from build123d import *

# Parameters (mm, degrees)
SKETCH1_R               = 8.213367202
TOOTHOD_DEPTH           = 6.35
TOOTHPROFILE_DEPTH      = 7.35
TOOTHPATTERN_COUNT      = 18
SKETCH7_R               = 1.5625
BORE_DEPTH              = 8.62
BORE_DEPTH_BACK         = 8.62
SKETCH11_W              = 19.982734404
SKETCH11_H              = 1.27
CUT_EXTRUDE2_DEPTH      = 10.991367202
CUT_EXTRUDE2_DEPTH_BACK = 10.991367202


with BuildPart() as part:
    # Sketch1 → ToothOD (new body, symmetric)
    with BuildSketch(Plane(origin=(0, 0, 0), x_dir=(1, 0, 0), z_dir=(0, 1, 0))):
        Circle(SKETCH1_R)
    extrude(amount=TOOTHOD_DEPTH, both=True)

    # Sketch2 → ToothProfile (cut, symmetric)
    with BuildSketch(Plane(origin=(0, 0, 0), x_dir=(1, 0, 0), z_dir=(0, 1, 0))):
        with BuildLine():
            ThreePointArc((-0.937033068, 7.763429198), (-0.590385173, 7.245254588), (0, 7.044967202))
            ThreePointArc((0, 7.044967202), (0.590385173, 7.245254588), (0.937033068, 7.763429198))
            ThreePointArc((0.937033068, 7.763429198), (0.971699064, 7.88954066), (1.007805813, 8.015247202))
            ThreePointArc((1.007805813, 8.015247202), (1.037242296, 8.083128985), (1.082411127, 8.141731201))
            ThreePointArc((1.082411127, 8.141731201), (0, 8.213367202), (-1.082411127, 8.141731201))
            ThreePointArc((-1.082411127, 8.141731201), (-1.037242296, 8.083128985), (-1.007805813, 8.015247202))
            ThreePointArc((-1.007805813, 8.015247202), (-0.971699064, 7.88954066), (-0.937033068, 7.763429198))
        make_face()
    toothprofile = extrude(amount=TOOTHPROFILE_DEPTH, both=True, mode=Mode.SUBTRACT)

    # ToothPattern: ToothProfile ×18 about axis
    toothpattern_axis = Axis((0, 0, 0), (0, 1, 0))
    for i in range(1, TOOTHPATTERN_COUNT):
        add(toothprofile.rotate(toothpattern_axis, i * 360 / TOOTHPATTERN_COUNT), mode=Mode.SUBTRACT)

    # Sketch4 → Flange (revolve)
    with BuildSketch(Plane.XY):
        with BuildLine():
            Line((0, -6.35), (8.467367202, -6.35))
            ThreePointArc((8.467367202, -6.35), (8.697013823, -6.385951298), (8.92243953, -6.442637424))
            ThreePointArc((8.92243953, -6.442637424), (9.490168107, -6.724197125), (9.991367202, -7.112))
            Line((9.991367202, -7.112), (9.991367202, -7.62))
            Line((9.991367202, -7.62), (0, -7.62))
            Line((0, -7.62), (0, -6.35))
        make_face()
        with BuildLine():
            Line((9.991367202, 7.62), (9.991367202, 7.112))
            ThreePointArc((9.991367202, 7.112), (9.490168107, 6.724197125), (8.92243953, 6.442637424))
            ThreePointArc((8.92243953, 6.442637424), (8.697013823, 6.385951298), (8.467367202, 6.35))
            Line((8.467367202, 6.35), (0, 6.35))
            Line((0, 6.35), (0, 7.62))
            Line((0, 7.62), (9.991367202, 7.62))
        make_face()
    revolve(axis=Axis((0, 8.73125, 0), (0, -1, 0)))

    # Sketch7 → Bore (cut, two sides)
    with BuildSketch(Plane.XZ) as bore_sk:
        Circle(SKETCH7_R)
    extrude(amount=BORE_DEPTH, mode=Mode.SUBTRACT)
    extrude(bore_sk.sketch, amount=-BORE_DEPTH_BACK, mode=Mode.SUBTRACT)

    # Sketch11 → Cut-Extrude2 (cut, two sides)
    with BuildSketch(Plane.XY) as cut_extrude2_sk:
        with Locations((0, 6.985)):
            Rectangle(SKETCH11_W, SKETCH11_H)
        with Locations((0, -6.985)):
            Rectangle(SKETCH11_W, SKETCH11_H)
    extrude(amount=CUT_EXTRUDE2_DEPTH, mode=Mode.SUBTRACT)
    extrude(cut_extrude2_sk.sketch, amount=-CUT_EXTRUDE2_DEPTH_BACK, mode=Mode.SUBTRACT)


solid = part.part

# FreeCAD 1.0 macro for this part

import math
import FreeCAD as App
import Part
import Sketcher
Q = App.Units.Quantity


def add_polygon(sketch, points):
    """Adds a closed chain of lines whose ends are joined by coincident constraints."""
    first, n = sketch.GeometryCount, len(points)
    for a, b in zip(points, points[1:] + points[:1]):
        sketch.addGeometry(Part.LineSegment(App.Vector(*a, 0), App.Vector(*b, 0)), False)
    for i in range(n):
        sketch.addConstraint(Sketcher.Constraint("Coincident", first + i, 2, first + (i + 1) % n, 1))

doc = App.newDocument("Part")
body = doc.addObject("PartDesign::Body", "Body")

# Sketch on XZ plane
sketch1 = body.newObject("Sketcher::SketchObject", "Sketch")
sketch1.AttachmentSupport = (doc.getObject("XZ_Plane"), [""])
sketch1.MapMode = "FlatFace"
sketch1.addGeometry(Part.Circle(App.Vector(0, 0, 0), App.Vector(0, 0, 1), 8.213367), False)
sketch1.addConstraint(Sketcher.Constraint("Coincident", 0, 3, -1, 1))
sketch1.addConstraint(Sketcher.Constraint("Diameter", 0, 16.426734))
pad1 = body.newObject("PartDesign::Pad", "Pad")
pad1.Profile = sketch1
pad1.Length = Q("0.5 in")
pad1.Midplane = True

# Sketch on XZ plane
sketch2 = body.newObject("Sketcher::SketchObject", "Sketch001")
sketch2.AttachmentSupport = (doc.getObject("XZ_Plane"), [""])
sketch2.MapMode = "FlatFace"
sketch2.addGeometry(Part.ArcOfCircle(Part.Circle(App.Vector(0, -8.015247, 0), App.Vector(0, 0, 1), 0.97028), math.radians(90), math.radians(164.957749)), False)
sketch2.addGeometry(Part.ArcOfCircle(Part.Circle(App.Vector(0, -8.015247, 0), App.Vector(0, 0, 1), 0.97028), math.radians(15.042251), math.radians(90)), False)
sketch2.addGeometry(Part.ArcOfCircle(Part.Circle(App.Vector(11.975386, -4.796985, 0), App.Vector(0, 0, 1), 11.430005), math.radians(-164.957748), math.radians(-163.646513)), False)
sketch2.addGeometry(Part.ArcOfCircle(Part.Circle(App.Vector(1.2954, -7.930857, 0), App.Vector(0, 0, 1), 0.29972), math.radians(-163.646511), math.radians(-135.285886)), False)
sketch2.addGeometry(Part.ArcOfCircle(Part.Circle(App.Vector(0, 0, 0), App.Vector(0, 0, 1), 8.213367), math.radians(-97.572841), math.radians(-82.427159)), False)
sketch2.addGeometry(Part.ArcOfCircle(Part.Circle(App.Vector(-1.2954, -7.930857, 0), App.Vector(0, 0, 1), 0.29972), math.radians(-44.714114), math.radians(-16.353489)), False)
sketch2.addGeometry(Part.ArcOfCircle(Part.Circle(App.Vector(-11.975386, -4.796985, 0), App.Vector(0, 0, 1), 11.430005), math.radians(-16.353487), math.radians(-15.042252)), False)
sketch2.addConstraint(Sketcher.Constraint("Tangent", 0, 1, 1, 2))
sketch2.addConstraint(Sketcher.Constraint("Tangent", 1, 1, 2, 1))
sketch2.addConstraint(Sketcher.Constraint("Tangent", 2, 2, 3, 1))
sketch2.addConstraint(Sketcher.Constraint("Coincident", 3, 2, 4, 2))
sketch2.addConstraint(Sketcher.Constraint("Coincident", 4, 1, 5, 1))
sketch2.addConstraint(Sketcher.Constraint("Tangent", 5, 2, 6, 1))
sketch2.addConstraint(Sketcher.Constraint("Tangent", 6, 2, 0, 2))
sketch2.addConstraint(Sketcher.Constraint("Coincident", 4, 3, -1, 1))
sketch2.addConstraint(Sketcher.Constraint("Equal", 0, 1))
sketch2.addConstraint(Sketcher.Constraint("Equal", 3, 5))
sketch2.addConstraint(Sketcher.Constraint("Equal", 2, 6))
sketch2.addConstraint(Sketcher.Constraint("Symmetric", 3, 3, 5, 3, -2))
sketch2.addConstraint(Sketcher.Constraint("PointOnObject", 0, 3, -2))
sketch2.addConstraint(Sketcher.Constraint("PointOnObject", 0, 1, -2))
sketch2.addConstraint(Sketcher.Constraint("Horizontal", 1, 3, 2, 2))
sketch2.addConstraint(Sketcher.Constraint("Radius", 0, Q("0.0382 in")))
sketch2.addConstraint(Sketcher.Constraint("Radius", 3, Q("0.0118 in")))
sketch2.addConstraint(Sketcher.Constraint("DistanceX", -1, 1, 3, 3, Q("0.051 in")))
sketch2.addConstraint(Sketcher.Constraint("Radius", 2, 11.430005))
sketch2.addConstraint(Sketcher.Constraint("Radius", 4, 8.213367))
sketch2.addConstraint(Sketcher.Constraint("DistanceY", 1, 1, -1, 1, 7.763429))
pocket1 = body.newObject("PartDesign::Pocket", "Pocket")
pocket1.Profile = sketch2
pocket1.Length = 14.7
pocket1.Midplane = True
doc.recompute()

polarpattern = body.newObject("PartDesign::PolarPattern", "PolarPattern")
polarpattern.Originals = [pocket1]
polarpattern.Axis = (doc.getObject("Y_Axis"), [""])
polarpattern.Angle = 360
polarpattern.Occurrences = 18
body.Tip = polarpattern

# Sketch on XY plane
sketch3 = body.newObject("Sketcher::SketchObject", "Sketch002")
sketch3.AttachmentSupport = (doc.getObject("XY_Plane"), [""])
sketch3.MapMode = "FlatFace"
sketch3.addGeometry(Part.LineSegment(App.Vector(8.467367, -6.35, 0), App.Vector(0, -6.35, 0)), False)
sketch3.addGeometry(Part.LineSegment(App.Vector(0, -6.35, 0), App.Vector(0, -7.62, 0)), False)
sketch3.addGeometry(Part.LineSegment(App.Vector(0, -7.62, 0), App.Vector(9.991367, -7.62, 0)), False)
sketch3.addGeometry(Part.LineSegment(App.Vector(9.991367, -7.62, 0), App.Vector(9.991367, -7.112, 0)), False)
sketch3.addGeometry(Part.ArcOfCircle(Part.Circle(App.Vector(7.789898, -9.439416, 0), App.Vector(0, 0, 1), 3.203644), math.radians(46.592965), math.radians(69.297433)), False)
sketch3.addGeometry(Part.ArcOfCircle(Part.Circle(App.Vector(8.187675, -8.888031, 0), App.Vector(0, 0, 1), 2.553395), math.radians(73.276105), math.radians(83.711343)), False)
sketch3.addGeometry(Part.LineSegment(App.Vector(9.991367, 7.112, 0), App.Vector(9.991367, 7.62, 0)), False)
sketch3.addGeometry(Part.LineSegment(App.Vector(9.991367, 7.62, 0), App.Vector(0, 7.62, 0)), False)
sketch3.addGeometry(Part.LineSegment(App.Vector(0, 7.62, 0), App.Vector(0, 6.35, 0)), False)
sketch3.addGeometry(Part.LineSegment(App.Vector(0, 6.35, 0), App.Vector(8.467367, 6.35, 0)), False)
sketch3.addGeometry(Part.ArcOfCircle(Part.Circle(App.Vector(8.187675, 8.888031, 0), App.Vector(0, 0, 1), 2.553395), math.radians(-83.711343), math.radians(-73.276105)), False)
sketch3.addGeometry(Part.ArcOfCircle(Part.Circle(App.Vector(7.789898, 9.439416, 0), App.Vector(0, 0, 1), 3.203644), math.radians(-69.297433), math.radians(-46.592965)), False)
sketch3.addConstraint(Sketcher.Constraint("Coincident", 0, 2, 1, 1))
sketch3.addConstraint(Sketcher.Constraint("Coincident", 1, 2, 2, 1))
sketch3.addConstraint(Sketcher.Constraint("Coincident", 2, 2, 3, 1))
sketch3.addConstraint(Sketcher.Constraint("Coincident", 3, 2, 4, 1))
sketch3.addConstraint(Sketcher.Constraint("Coincident", 4, 2, 5, 1))
sketch3.addConstraint(Sketcher.Constraint("Coincident", 5, 2, 0, 1))
sketch3.addConstraint(Sketcher.Constraint("Coincident", 6, 2, 7, 1))
sketch3.addConstraint(Sketcher.Constraint("Coincident", 7, 2, 8, 1))
sketch3.addConstraint(Sketcher.Constraint("Coincident", 8, 2, 9, 1))
sketch3.addConstraint(Sketcher.Constraint("Coincident", 9, 2, 10, 1))
sketch3.addConstraint(Sketcher.Constraint("Coincident", 10, 2, 11, 1))
sketch3.addConstraint(Sketcher.Constraint("Coincident", 11, 2, 6, 1))
sketch3.addConstraint(Sketcher.Constraint("Horizontal", 0))
sketch3.addConstraint(Sketcher.Constraint("Vertical", 1))
sketch3.addConstraint(Sketcher.Constraint("Horizontal", 2))
sketch3.addConstraint(Sketcher.Constraint("Vertical", 3))
sketch3.addConstraint(Sketcher.Constraint("Vertical", 6))
sketch3.addConstraint(Sketcher.Constraint("Horizontal", 7))
sketch3.addConstraint(Sketcher.Constraint("Vertical", 8))
sketch3.addConstraint(Sketcher.Constraint("Horizontal", 9))
sketch3.addConstraint(Sketcher.Constraint("Equal", 5, 10))
sketch3.addConstraint(Sketcher.Constraint("Equal", 4, 11))
sketch3.addConstraint(Sketcher.Constraint("Symmetric", 1, 2, 7, 2, -1, 1))
sketch3.addConstraint(Sketcher.Constraint("Symmetric", 5, 3, 10, 3, -1))
sketch3.addConstraint(Sketcher.Constraint("Symmetric", 4, 3, 11, 3, -1))
sketch3.addConstraint(Sketcher.Constraint("Symmetric", 0, 2, 8, 2, -1))
sketch3.addConstraint(Sketcher.Constraint("Vertical", 3, 2, 6, 2))
sketch3.addConstraint(Sketcher.Constraint("DistanceY", 1, 2, 1, 1, Q("0.05 in")))
sketch3.addConstraint(Sketcher.Constraint("DistanceY", 3, 1, 3, 2, Q("0.02 in")))
sketch3.addConstraint(Sketcher.Constraint("DistanceY", 1, 2, -1, 1, Q("0.3 in")))
sketch3.addConstraint(Sketcher.Constraint("DistanceX", 5, 2, 3, 2, Q("0.06 in")))
sketch3.addConstraint(Sketcher.Constraint("Radius", 4, 3.203644))
sketch3.addConstraint(Sketcher.Constraint("Radius", 5, 2.553395))
sketch3.addConstraint(Sketcher.Constraint("DistanceX", 0, 2, 0, 1, 8.467367))
sketch3.addConstraint(Sketcher.Constraint("DistanceY", 5, 3, -1, 1, 8.888031))
sketch3.addConstraint(Sketcher.Constraint("DistanceX", -1, 1, 4, 2, 8.92244))
revolution = body.newObject("PartDesign::Revolution", "Revolution")
revolution.Profile = sketch3
revolution.ReferenceAxis = (sketch3, ["V_Axis"])
revolution.Angle = 360

# Sketch on XZ plane
sketch4 = body.newObject("Sketcher::SketchObject", "Sketch003")
sketch4.AttachmentSupport = (doc.getObject("XZ_Plane"), [""])
sketch4.MapMode = "FlatFace"
sketch4.addGeometry(Part.Circle(App.Vector(0, 0, 0), App.Vector(0, 0, 1), 1.5625), False)
sketch4.addConstraint(Sketcher.Constraint("Coincident", 0, 3, -1, 1))
sketch4.addConstraint(Sketcher.Constraint("Diameter", 0, 3.125))
pocket2 = body.newObject("PartDesign::Pocket", "Pocket001")
pocket2.Profile = sketch4
pocket2.Type = "ThroughAll"
pocket2.Midplane = True

# Sketch on XY plane
sketch5 = body.newObject("Sketcher::SketchObject", "Sketch004")
sketch5.AttachmentSupport = (doc.getObject("XY_Plane"), [""])
sketch5.MapMode = "FlatFace"
add_polygon(sketch5, [(-9.991367, 7.62), (-9.991367, 6.35), (9.991367, 6.35), (9.991367, 7.62)])  # lines 0-3
add_polygon(sketch5, [(-9.991367, -6.35), (-9.991367, -7.62), (9.991367, -7.62), (9.991367, -6.35)])  # lines 4-7
sketch5.addConstraint(Sketcher.Constraint("Vertical", 0))
sketch5.addConstraint(Sketcher.Constraint("Horizontal", 1))
sketch5.addConstraint(Sketcher.Constraint("Vertical", 2))
sketch5.addConstraint(Sketcher.Constraint("Horizontal", 3))
sketch5.addConstraint(Sketcher.Constraint("Vertical", 4))
sketch5.addConstraint(Sketcher.Constraint("Horizontal", 5))
sketch5.addConstraint(Sketcher.Constraint("Vertical", 6))
sketch5.addConstraint(Sketcher.Constraint("Horizontal", 7))
sketch5.addConstraint(Sketcher.Constraint("Symmetric", 2, 2, 4, 2, -1, 1))
sketch5.addConstraint(Sketcher.Constraint("Symmetric", 0, 2, 6, 2, -1, 1))
sketch5.addConstraint(Sketcher.Constraint("Vertical", 3, 2, 4, 2))
sketch5.addConstraint(Sketcher.Constraint("DistanceY", 0, 2, 0, 1, Q("0.05 in")))
sketch5.addConstraint(Sketcher.Constraint("DistanceY", -1, 1, 2, 2, Q("0.3 in")))
sketch5.addConstraint(Sketcher.Constraint("DistanceX", 1, 1, 1, 2, 19.982734))
pocket3 = body.newObject("PartDesign::Pocket", "Pocket002")
pocket3.Profile = sketch5
pocket3.Type = "ThroughAll"
pocket3.Midplane = True

doc.recompute()
